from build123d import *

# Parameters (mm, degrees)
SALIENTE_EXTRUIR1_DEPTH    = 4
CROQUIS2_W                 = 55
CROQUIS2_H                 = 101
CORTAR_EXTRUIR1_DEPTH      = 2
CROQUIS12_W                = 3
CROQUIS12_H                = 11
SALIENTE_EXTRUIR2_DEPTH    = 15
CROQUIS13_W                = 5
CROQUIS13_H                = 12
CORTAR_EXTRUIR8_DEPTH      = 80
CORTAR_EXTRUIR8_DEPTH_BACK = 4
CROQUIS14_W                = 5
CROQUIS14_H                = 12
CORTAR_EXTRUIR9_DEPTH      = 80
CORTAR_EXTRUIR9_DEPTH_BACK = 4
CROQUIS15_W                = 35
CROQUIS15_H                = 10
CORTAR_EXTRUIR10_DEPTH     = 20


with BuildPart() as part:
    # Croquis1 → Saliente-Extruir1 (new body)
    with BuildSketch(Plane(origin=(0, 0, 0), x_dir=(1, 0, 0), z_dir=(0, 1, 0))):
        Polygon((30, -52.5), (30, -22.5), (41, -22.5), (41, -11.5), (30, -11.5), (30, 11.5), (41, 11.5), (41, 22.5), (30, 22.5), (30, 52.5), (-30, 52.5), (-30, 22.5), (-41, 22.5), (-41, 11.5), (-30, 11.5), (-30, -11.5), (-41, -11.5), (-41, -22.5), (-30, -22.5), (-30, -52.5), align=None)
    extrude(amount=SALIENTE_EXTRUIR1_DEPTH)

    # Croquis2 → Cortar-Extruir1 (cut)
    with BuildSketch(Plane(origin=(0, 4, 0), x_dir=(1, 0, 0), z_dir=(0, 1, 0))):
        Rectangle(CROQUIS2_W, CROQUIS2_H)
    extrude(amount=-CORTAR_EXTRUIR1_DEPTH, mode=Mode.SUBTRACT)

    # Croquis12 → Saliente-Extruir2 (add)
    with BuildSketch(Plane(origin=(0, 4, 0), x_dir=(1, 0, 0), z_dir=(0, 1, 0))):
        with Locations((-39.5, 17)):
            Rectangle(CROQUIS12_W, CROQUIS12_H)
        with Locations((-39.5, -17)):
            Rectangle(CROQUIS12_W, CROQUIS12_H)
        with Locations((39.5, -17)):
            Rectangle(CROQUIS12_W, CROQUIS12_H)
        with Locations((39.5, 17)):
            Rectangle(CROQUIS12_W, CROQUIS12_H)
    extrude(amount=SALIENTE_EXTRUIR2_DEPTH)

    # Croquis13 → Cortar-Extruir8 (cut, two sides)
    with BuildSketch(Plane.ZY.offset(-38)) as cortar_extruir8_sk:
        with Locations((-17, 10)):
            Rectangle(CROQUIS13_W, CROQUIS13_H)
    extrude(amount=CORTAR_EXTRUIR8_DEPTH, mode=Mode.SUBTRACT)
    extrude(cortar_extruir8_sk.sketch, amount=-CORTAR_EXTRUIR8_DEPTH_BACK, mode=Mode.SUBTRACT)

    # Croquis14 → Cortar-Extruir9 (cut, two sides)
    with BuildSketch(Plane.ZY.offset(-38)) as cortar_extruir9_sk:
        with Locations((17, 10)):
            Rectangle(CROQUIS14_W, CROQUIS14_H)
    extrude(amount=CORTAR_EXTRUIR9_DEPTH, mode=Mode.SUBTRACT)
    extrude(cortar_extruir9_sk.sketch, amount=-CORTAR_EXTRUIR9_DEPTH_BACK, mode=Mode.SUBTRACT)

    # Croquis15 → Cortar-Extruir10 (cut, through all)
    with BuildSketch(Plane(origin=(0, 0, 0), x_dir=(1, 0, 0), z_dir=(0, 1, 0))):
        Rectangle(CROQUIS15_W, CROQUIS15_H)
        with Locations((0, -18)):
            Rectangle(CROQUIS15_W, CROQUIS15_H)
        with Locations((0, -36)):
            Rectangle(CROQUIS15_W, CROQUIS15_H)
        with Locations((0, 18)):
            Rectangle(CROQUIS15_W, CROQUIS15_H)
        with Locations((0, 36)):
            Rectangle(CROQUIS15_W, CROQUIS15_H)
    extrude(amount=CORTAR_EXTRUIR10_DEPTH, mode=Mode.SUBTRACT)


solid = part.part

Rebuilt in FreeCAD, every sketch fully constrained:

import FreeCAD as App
import Part
import Sketcher
from FreeCAD import Vector
Q = App.Units.Quantity

doc = App.newDocument("Part")
body = doc.addObject("PartDesign::Body", "Body")

sketch1 = body.newObject("Sketcher::SketchObject", "Sketch")
sketch1.AttachmentSupport = (doc.getObject("XZ_Plane"), [""])
sketch1.MapMode = "FlatFace"
sketch1.addGeometry(Part.LineSegment(Vector(30, 52, 0), Vector(30, 22, 0)), False)
sketch1.addGeometry(Part.LineSegment(Vector(30, 22, 0), Vector(41, 22, 0)), False)
sketch1.addGeometry(Part.LineSegment(Vector(41, 22, 0), Vector(41, 12, 0)), False)
sketch1.addGeometry(Part.LineSegment(Vector(41, 12, 0), Vector(30, 12, 0)), False)
sketch1.addGeometry(Part.LineSegment(Vector(30, 12, 0), Vector(30, -12, 0)), False)
sketch1.addGeometry(Part.LineSegment(Vector(30, -12, 0), Vector(41, -12, 0)), False)
sketch1.addGeometry(Part.LineSegment(Vector(41, -12, 0), Vector(41, -22, 0)), False)
sketch1.addGeometry(Part.LineSegment(Vector(41, -22, 0), Vector(30, -22, 0)), False)
sketch1.addGeometry(Part.LineSegment(Vector(30, -22, 0), Vector(30, -52, 0)), False)
sketch1.addGeometry(Part.LineSegment(Vector(30, -52, 0), Vector(-30, -52, 0)), False)
sketch1.addGeometry(Part.LineSegment(Vector(-30, -52, 0), Vector(-30, -22, 0)), False)
sketch1.addGeometry(Part.LineSegment(Vector(-30, -22, 0), Vector(-41, -22, 0)), False)
sketch1.addGeometry(Part.LineSegment(Vector(-41, -22, 0), Vector(-41, -12, 0)), False)
sketch1.addGeometry(Part.LineSegment(Vector(-41, -12, 0), Vector(-30, -12, 0)), False)
sketch1.addGeometry(Part.LineSegment(Vector(-30, -12, 0), Vector(-30, 12, 0)), False)
sketch1.addGeometry(Part.LineSegment(Vector(-30, 12, 0), Vector(-41, 12, 0)), False)
sketch1.addGeometry(Part.LineSegment(Vector(-41, 12, 0), Vector(-41, 22, 0)), False)
sketch1.addGeometry(Part.LineSegment(Vector(-41, 22, 0), Vector(-30, 22, 0)), False)
sketch1.addGeometry(Part.LineSegment(Vector(-30, 22, 0), Vector(-30, 52, 0)), False)
sketch1.addGeometry(Part.LineSegment(Vector(-30, 52, 0), Vector(30, 52, 0)), False)
sketch1.addConstraint(Sketcher.Constraint("Coincident", 0, 2, 1, 1))
sketch1.addConstraint(Sketcher.Constraint("Coincident", 1, 2, 2, 1))
sketch1.addConstraint(Sketcher.Constraint("Coincident", 2, 2, 3, 1))
sketch1.addConstraint(Sketcher.Constraint("Coincident", 3, 2, 4, 1))
sketch1.addConstraint(Sketcher.Constraint("Coincident", 4, 2, 5, 1))
sketch1.addConstraint(Sketcher.Constraint("Coincident", 5, 2, 6, 1))
sketch1.addConstraint(Sketcher.Constraint("Coincident", 6, 2, 7, 1))
sketch1.addConstraint(Sketcher.Constraint("Coincident", 7, 2, 8, 1))
sketch1.addConstraint(Sketcher.Constraint("Coincident", 8, 2, 9, 1))
sketch1.addConstraint(Sketcher.Constraint("Coincident", 9, 2, 10, 1))
sketch1.addConstraint(Sketcher.Constraint("Coincident", 10, 2, 11, 1))
sketch1.addConstraint(Sketcher.Constraint("Coincident", 11, 2, 12, 1))
sketch1.addConstraint(Sketcher.Constraint("Coincident", 12, 2, 13, 1))
sketch1.addConstraint(Sketcher.Constraint("Coincident", 13, 2, 14, 1))
sketch1.addConstraint(Sketcher.Constraint("Coincident", 14, 2, 15, 1))
sketch1.addConstraint(Sketcher.Constraint("Coincident", 15, 2, 16, 1))
sketch1.addConstraint(Sketcher.Constraint("Coincident", 16, 2, 17, 1))
sketch1.addConstraint(Sketcher.Constraint("Coincident", 17, 2, 18, 1))
sketch1.addConstraint(Sketcher.Constraint("Coincident", 18, 2, 19, 1))
sketch1.addConstraint(Sketcher.Constraint("Coincident", 19, 2, 0, 1))
sketch1.addConstraint(Sketcher.Constraint("Vertical", 0))
sketch1.addConstraint(Sketcher.Constraint("Horizontal", 1))
sketch1.addConstraint(Sketcher.Constraint("Vertical", 2))
sketch1.addConstraint(Sketcher.Constraint("Horizontal", 3))
sketch1.addConstraint(Sketcher.Constraint("Vertical", 4))
sketch1.addConstraint(Sketcher.Constraint("Horizontal", 5))
sketch1.addConstraint(Sketcher.Constraint("Vertical", 6))
sketch1.addConstraint(Sketcher.Constraint("Horizontal", 7))
sketch1.addConstraint(Sketcher.Constraint("Vertical", 8))
sketch1.addConstraint(Sketcher.Constraint("Horizontal", 9))
sketch1.addConstraint(Sketcher.Constraint("Vertical", 10))
sketch1.addConstraint(Sketcher.Constraint("Horizontal", 11))
sketch1.addConstraint(Sketcher.Constraint("Vertical", 12))
sketch1.addConstraint(Sketcher.Constraint("Horizontal", 13))
sketch1.addConstraint(Sketcher.Constraint("Vertical", 14))
sketch1.addConstraint(Sketcher.Constraint("Horizontal", 15))
sketch1.addConstraint(Sketcher.Constraint("Vertical", 16))
sketch1.addConstraint(Sketcher.Constraint("Horizontal", 17))
sketch1.addConstraint(Sketcher.Constraint("Vertical", 18))
sketch1.addConstraint(Sketcher.Constraint("Horizontal", 19))
sketch1.addConstraint(Sketcher.Constraint("Symmetric", 0, 2, 10, 2, -1, 1))
sketch1.addConstraint(Sketcher.Constraint("Symmetric", 2, 2, 12, 2, -1, 1))
sketch1.addConstraint(Sketcher.Constraint("Symmetric", 4, 2, 14, 2, -1, 1))
sketch1.addConstraint(Sketcher.Constraint("Symmetric", 6, 2, 16, 2, -1, 1))
sketch1.addConstraint(Sketcher.Constraint("Symmetric", 8, 2, 18, 2, -1, 1))
sketch1.addConstraint(Sketcher.Constraint("Symmetric", 7, 2, 10, 2, -2))
sketch1.addConstraint(Sketcher.Constraint("Symmetric", 5, 2, 12, 2, -2))
sketch1.addConstraint(Sketcher.Constraint("Vertical", 0, 2, 3, 2))
sketch1.addConstraint(Sketcher.Constraint("Equal", 17, 2))
sketch1.addConstraint(Sketcher.Constraint("DistanceX", 1, 1, 1, 2, Q("11 mm")))
sketch1.addConstraint(Sketcher.Constraint("DistanceX", 9, 2, 9, 1, Q("60 mm")))
sketch1.addConstraint(Sketcher.Constraint("DistanceY", 0, 2, 0, 1, Q("30 mm")))
sketch1.addConstraint(Sketcher.Constraint("DistanceY", 4, 2, 4, 1, Q("23 mm")))
pad1 = body.newObject("PartDesign::Pad", "Pad")
pad1.Profile = sketch1
pad1.Length = 4
pad1.Reversed = True

sketch2 = body.newObject("Sketcher::SketchObject", "Sketch001")
sketch2.AttachmentSupport = (doc.getObject("XZ_Plane"), [""])
sketch2.MapMode = "FlatFace"
sketch2.AttachmentOffset = App.Placement(Vector(0, 0, -4), App.Rotation())
sketch2.addGeometry(Part.LineSegment(Vector(-28, -50, 0), Vector(-28, 50, 0)), False)
sketch2.addGeometry(Part.LineSegment(Vector(-28, 50, 0), Vector(28, 50, 0)), False)
sketch2.addGeometry(Part.LineSegment(Vector(28, 50, 0), Vector(28, -50, 0)), False)
sketch2.addGeometry(Part.LineSegment(Vector(28, -50, 0), Vector(-28, -50, 0)), False)
sketch2.addConstraint(Sketcher.Constraint("Coincident", 0, 2, 1, 1))
sketch2.addConstraint(Sketcher.Constraint("Coincident", 1, 2, 2, 1))
sketch2.addConstraint(Sketcher.Constraint("Coincident", 2, 2, 3, 1))
sketch2.addConstraint(Sketcher.Constraint("Coincident", 3, 2, 0, 1))
sketch2.addConstraint(Sketcher.Constraint("Vertical", 0))
sketch2.addConstraint(Sketcher.Constraint("Horizontal", 1))
sketch2.addConstraint(Sketcher.Constraint("Vertical", 2))
sketch2.addConstraint(Sketcher.Constraint("Horizontal", 3))
sketch2.addConstraint(Sketcher.Constraint("Symmetric", 0, 2, 2, 2, -1, 1))
sketch2.addConstraint(Sketcher.Constraint("DistanceX", 1, 1, 1, 2, Q("55 mm")))
sketch2.addConstraint(Sketcher.Constraint("DistanceY", 0, 1, 0, 2, Q("101 mm")))
pocket1 = body.newObject("PartDesign::Pocket", "Pocket")
pocket1.Profile = sketch2
pocket1.Length = 2
pocket1.Reversed = True

sketch3 = body.newObject("Sketcher::SketchObject", "Sketch002")
sketch3.AttachmentSupport = (doc.getObject("XZ_Plane"), [""])
sketch3.MapMode = "FlatFace"
sketch3.AttachmentOffset = App.Placement(Vector(0, 0, -4), App.Rotation())
sketch3.addGeometry(Part.LineSegment(Vector(-41, -22.5, 0), Vector(-41, -11.5, 0)), False)
sketch3.addGeometry(Part.LineSegment(Vector(-41, -11.5, 0), Vector(-38, -11.5, 0)), False)
sketch3.addGeometry(Part.LineSegment(Vector(-38, -11.5, 0), Vector(-38, -22.5, 0)), False)
sketch3.addGeometry(Part.LineSegment(Vector(-38, -22.5, 0), Vector(-41, -22.5, 0)), False)
sketch3.addGeometry(Part.LineSegment(Vector(-41, 11.5, 0), Vector(-41, 22.5, 0)), False)
sketch3.addGeometry(Part.LineSegment(Vector(-41, 22.5, 0), Vector(-38, 22.5, 0)), False)
sketch3.addGeometry(Part.LineSegment(Vector(-38, 22.5, 0), Vector(-38, 11.5, 0)), False)
sketch3.addGeometry(Part.LineSegment(Vector(-38, 11.5, 0), Vector(-41, 11.5, 0)), False)
sketch3.addGeometry(Part.LineSegment(Vector(38, 11.5, 0), Vector(38, 22.5, 0)), False)
sketch3.addGeometry(Part.LineSegment(Vector(38, 22.5, 0), Vector(41, 22.5, 0)), False)
sketch3.addGeometry(Part.LineSegment(Vector(41, 22.5, 0), Vector(41, 11.5, 0)), False)
sketch3.addGeometry(Part.LineSegment(Vector(41, 11.5, 0), Vector(38, 11.5, 0)), False)
sketch3.addGeometry(Part.LineSegment(Vector(38, -22.5, 0), Vector(38, -11.5, 0)), False)
sketch3.addGeometry(Part.LineSegment(Vector(38, -11.5, 0), Vector(41, -11.5, 0)), False)
sketch3.addGeometry(Part.LineSegment(Vector(41, -11.5, 0), Vector(41, -22.5, 0)), False)
sketch3.addGeometry(Part.LineSegment(Vector(41, -22.5, 0), Vector(38, -22.5, 0)), False)
sketch3.addConstraint(Sketcher.Constraint("Coincident", 0, 2, 1, 1))
sketch3.addConstraint(Sketcher.Constraint("Coincident", 1, 2, 2, 1))
sketch3.addConstraint(Sketcher.Constraint("Coincident", 2, 2, 3, 1))
sketch3.addConstraint(Sketcher.Constraint("Coincident", 3, 2, 0, 1))
sketch3.addConstraint(Sketcher.Constraint("Coincident", 4, 2, 5, 1))
sketch3.addConstraint(Sketcher.Constraint("Coincident", 5, 2, 6, 1))
sketch3.addConstraint(Sketcher.Constraint("Coincident", 6, 2, 7, 1))
sketch3.addConstraint(Sketcher.Constraint("Coincident", 7, 2, 4, 1))
sketch3.addConstraint(Sketcher.Constraint("Coincident", 8, 2, 9, 1))
sketch3.addConstraint(Sketcher.Constraint("Coincident", 9, 2, 10, 1))
sketch3.addConstraint(Sketcher.Constraint("Coincident", 10, 2, 11, 1))
sketch3.addConstraint(Sketcher.Constraint("Coincident", 11, 2, 8, 1))
sketch3.addConstraint(Sketcher.Constraint("Coincident", 12, 2, 13, 1))
sketch3.addConstraint(Sketcher.Constraint("Coincident", 13, 2, 14, 1))
sketch3.addConstraint(Sketcher.Constraint("Coincident", 14, 2, 15, 1))
sketch3.addConstraint(Sketcher.Constraint("Coincident", 15, 2, 12, 1))
sketch3.addConstraint(Sketcher.Constraint("Vertical", 0))
sketch3.addConstraint(Sketcher.Constraint("Horizontal", 1))
sketch3.addConstraint(Sketcher.Constraint("Vertical", 2))
sketch3.addConstraint(Sketcher.Constraint("Horizontal", 3))
sketch3.addConstraint(Sketcher.Constraint("Vertical", 4))
sketch3.addConstraint(Sketcher.Constraint("Horizontal", 5))
sketch3.addConstraint(Sketcher.Constraint("Vertical", 6))
sketch3.addConstraint(Sketcher.Constraint("Horizontal", 7))
sketch3.addConstraint(Sketcher.Constraint("Vertical", 8))
sketch3.addConstraint(Sketcher.Constraint("Horizontal", 9))
sketch3.addConstraint(Sketcher.Constraint("Vertical", 10))
sketch3.addConstraint(Sketcher.Constraint("Horizontal", 11))
sketch3.addConstraint(Sketcher.Constraint("Vertical", 12))
sketch3.addConstraint(Sketcher.Constraint("Horizontal", 13))
sketch3.addConstraint(Sketcher.Constraint("Vertical", 14))
sketch3.addConstraint(Sketcher.Constraint("Horizontal", 15))
sketch3.addConstraint(Sketcher.Constraint("Symmetric", 2, 2, 8, 2, -1, 1))
sketch3.addConstraint(Sketcher.Constraint("Symmetric", 0, 2, 10, 2, -1, 1))
sketch3.addConstraint(Sketcher.Constraint("Symmetric", 6, 2, 12, 2, -1, 1))
sketch3.addConstraint(Sketcher.Constraint("Symmetric", 4, 2, 14, 2, -1, 1))
sketch3.addConstraint(Sketcher.Constraint("Symmetric", 5, 2, 8, 2, -2))
sketch3.addConstraint(Sketcher.Constraint("Symmetric", 7, 2, 10, 2, -2))
sketch3.addConstraint(Sketcher.Constraint("DistanceX", 1, 1, 1, 2, Q("3 mm")))
sketch3.addConstraint(Sketcher.Constraint("DistanceY", 0, 1, 0, 2, Q("11 mm")))
sketch3.addConstraint(Sketcher.Constraint("DistanceX", 0, 2, -1, 1, Q("41 mm")))
sketch3.addConstraint(Sketcher.Constraint("DistanceY", 0, 2, 4, 2, Q("34 mm")))
pad2 = body.newObject("PartDesign::Pad", "Pad001")
pad2.Profile = sketch3
pad2.Length = 15
pad2.Reversed = True

sketch4 = body.newObject("Sketcher::SketchObject", "Sketch003")
sketch4.AttachmentSupport = (doc.getObject("YZ_Plane"), [""])
sketch4.MapMode = "FlatFace"
sketch4.AttachmentOffset = App.Placement(Vector(0, 0, 38), App.Rotation())
sketch4.addGeometry(Part.LineSegment(Vector(16, -20, 0), Vector(4, -20, 0)), False)
sketch4.addGeometry(Part.LineSegment(Vector(4, -20, 0), Vector(4, -14, 0)), False)
sketch4.addGeometry(Part.LineSegment(Vector(4, -14, 0), Vector(16, -14, 0)), False)
sketch4.addGeometry(Part.LineSegment(Vector(16, -14, 0), Vector(16, -20, 0)), False)
sketch4.addConstraint(Sketcher.Constraint("Coincident", 0, 2, 1, 1))
sketch4.addConstraint(Sketcher.Constraint("Coincident", 1, 2, 2, 1))
sketch4.addConstraint(Sketcher.Constraint("Coincident", 2, 2, 3, 1))
sketch4.addConstraint(Sketcher.Constraint("Coincident", 3, 2, 0, 1))
sketch4.addConstraint(Sketcher.Constraint("Horizontal", 0))
sketch4.addConstraint(Sketcher.Constraint("Vertical", 1))
sketch4.addConstraint(Sketcher.Constraint("Horizontal", 2))
sketch4.addConstraint(Sketcher.Constraint("Vertical", 3))
sketch4.addConstraint(Sketcher.Constraint("DistanceX", 0, 2, 0, 1, Q("12 mm")))
sketch4.addConstraint(Sketcher.Constraint("DistanceY", 1, 1, 1, 2, Q("5 mm")))
sketch4.addConstraint(Sketcher.Constraint("DistanceX", -1, 1, 0, 2, Q("4 mm")))
sketch4.addConstraint(Sketcher.Constraint("DistanceY", 0, 2, -1, 1, Q("19.5 mm")))
pocket2 = body.newObject("PartDesign::Pocket", "Pocket001")
pocket2.Profile = sketch4
pocket2.Type = "ThroughAll"
pocket2.Midplane = True

sketch5 = body.newObject("Sketcher::SketchObject", "Sketch004")
sketch5.AttachmentSupport = (doc.getObject("YZ_Plane"), [""])
sketch5.MapMode = "FlatFace"
sketch5.AttachmentOffset = App.Placement(Vector(0, 0, 38), App.Rotation())
sketch5.addGeometry(Part.LineSegment(Vector(16, 14, 0), Vector(4, 14, 0)), False)
sketch5.addGeometry(Part.LineSegment(Vector(4, 14, 0), Vector(4, 20, 0)), False)
sketch5.addGeometry(Part.LineSegment(Vector(4, 20, 0), Vector(16, 20, 0)), False)
sketch5.addGeometry(Part.LineSegment(Vector(16, 20, 0), Vector(16, 14, 0)), False)
sketch5.addConstraint(Sketcher.Constraint("Coincident", 0, 2, 1, 1))
sketch5.addConstraint(Sketcher.Constraint("Coincident", 1, 2, 2, 1))
sketch5.addConstraint(Sketcher.Constraint("Coincident", 2, 2, 3, 1))
sketch5.addConstraint(Sketcher.Constraint("Coincident", 3, 2, 0, 1))
sketch5.addConstraint(Sketcher.Constraint("Horizontal", 0))
sketch5.addConstraint(Sketcher.Constraint("Vertical", 1))
sketch5.addConstraint(Sketcher.Constraint("Horizontal", 2))
sketch5.addConstraint(Sketcher.Constraint("Vertical", 3))
sketch5.addConstraint(Sketcher.Constraint("DistanceX", 0, 2, 0, 1, Q("12 mm")))
sketch5.addConstraint(Sketcher.Constraint("DistanceY", 1, 1, 1, 2, Q("5 mm")))
sketch5.addConstraint(Sketcher.Constraint("DistanceX", -1, 1, 0, 2, Q("4 mm")))
sketch5.addConstraint(Sketcher.Constraint("DistanceY", -1, 1, 0, 2, Q("14.5 mm")))
pocket3 = body.newObject("PartDesign::Pocket", "Pocket002")
pocket3.Profile = sketch5
pocket3.Type = "ThroughAll"
pocket3.Midplane = True

sketch6 = body.newObject("Sketcher::SketchObject", "Sketch005")
sketch6.AttachmentSupport = (doc.getObject("XZ_Plane"), [""])
sketch6.MapMode = "FlatFace"
sketch6.addGeometry(Part.LineSegment(Vector(-18, -5, 0), Vector(-18, 5, 0)), False)
sketch6.addGeometry(Part.LineSegment(Vector(-18, 5, 0), Vector(18, 5, 0)), False)
sketch6.addGeometry(Part.LineSegment(Vector(18, 5, 0), Vector(18, -5, 0)), False)
sketch6.addGeometry(Part.LineSegment(Vector(18, -5, 0), Vector(-18, -5, 0)), False)
sketch6.addGeometry(Part.LineSegment(Vector(-18, 13, 0), Vector(-18, 23, 0)), False)
sketch6.addGeometry(Part.LineSegment(Vector(-18, 23, 0), Vector(18, 23, 0)), False)
sketch6.addGeometry(Part.LineSegment(Vector(18, 23, 0), Vector(18, 13, 0)), False)
sketch6.addGeometry(Part.LineSegment(Vector(18, 13, 0), Vector(-18, 13, 0)), False)
sketch6.addGeometry(Part.LineSegment(Vector(-18, 31, 0), Vector(-18, 41, 0)), False)
sketch6.addGeometry(Part.LineSegment(Vector(-18, 41, 0), Vector(18, 41, 0)), False)
sketch6.addGeometry(Part.LineSegment(Vector(18, 41, 0), Vector(18, 31, 0)), False)
sketch6.addGeometry(Part.LineSegment(Vector(18, 31, 0), Vector(-18, 31, 0)), False)
sketch6.addGeometry(Part.LineSegment(Vector(-18, -23, 0), Vector(-18, -13, 0)), False)
sketch6.addGeometry(Part.LineSegment(Vector(-18, -13, 0), Vector(18, -13, 0)), False)
sketch6.addGeometry(Part.LineSegment(Vector(18, -13, 0), Vector(18, -23, 0)), False)
sketch6.addGeometry(Part.LineSegment(Vector(18, -23, 0), Vector(-18, -23, 0)), False)
sketch6.addGeometry(Part.LineSegment(Vector(-18, -41, 0), Vector(-18, -31, 0)), False)
sketch6.addGeometry(Part.LineSegment(Vector(-18, -31, 0), Vector(18, -31, 0)), False)
sketch6.addGeometry(Part.LineSegment(Vector(18, -31, 0), Vector(18, -41, 0)), False)
sketch6.addGeometry(Part.LineSegment(Vector(18, -41, 0), Vector(-18, -41, 0)), False)
sketch6.addConstraint(Sketcher.Constraint("Coincident", 0, 2, 1, 1))
sketch6.addConstraint(Sketcher.Constraint("Coincident", 1, 2, 2, 1))
sketch6.addConstraint(Sketcher.Constraint("Coincident", 2, 2, 3, 1))
sketch6.addConstraint(Sketcher.Constraint("Coincident", 3, 2, 0, 1))
sketch6.addConstraint(Sketcher.Constraint("Coincident", 4, 2, 5, 1))
sketch6.addConstraint(Sketcher.Constraint("Coincident", 5, 2, 6, 1))
sketch6.addConstraint(Sketcher.Constraint("Coincident", 6, 2, 7, 1))
sketch6.addConstraint(Sketcher.Constraint("Coincident", 7, 2, 4, 1))
sketch6.addConstraint(Sketcher.Constraint("Coincident", 8, 2, 9, 1))
sketch6.addConstraint(Sketcher.Constraint("Coincident", 9, 2, 10, 1))
sketch6.addConstraint(Sketcher.Constraint("Coincident", 10, 2, 11, 1))
sketch6.addConstraint(Sketcher.Constraint("Coincident", 11, 2, 8, 1))
sketch6.addConstraint(Sketcher.Constraint("Coincident", 12, 2, 13, 1))
sketch6.addConstraint(Sketcher.Constraint("Coincident", 13, 2, 14, 1))
sketch6.addConstraint(Sketcher.Constraint("Coincident", 14, 2, 15, 1))
sketch6.addConstraint(Sketcher.Constraint("Coincident", 15, 2, 12, 1))
sketch6.addConstraint(Sketcher.Constraint("Coincident", 16, 2, 17, 1))
sketch6.addConstraint(Sketcher.Constraint("Coincident", 17, 2, 18, 1))
sketch6.addConstraint(Sketcher.Constraint("Coincident", 18, 2, 19, 1))
sketch6.addConstraint(Sketcher.Constraint("Coincident", 19, 2, 16, 1))
sketch6.addConstraint(Sketcher.Constraint("Vertical", 0))
sketch6.addConstraint(Sketcher.Constraint("Horizontal", 1))
sketch6.addConstraint(Sketcher.Constraint("Vertical", 2))
sketch6.addConstraint(Sketcher.Constraint("Horizontal", 3))
sketch6.addConstraint(Sketcher.Constraint("Vertical", 4))
sketch6.addConstraint(Sketcher.Constraint("Horizontal", 5))
sketch6.addConstraint(Sketcher.Constraint("Vertical", 6))
sketch6.addConstraint(Sketcher.Constraint("Horizontal", 7))
sketch6.addConstraint(Sketcher.Constraint("Vertical", 8))
sketch6.addConstraint(Sketcher.Constraint("Horizontal", 9))
sketch6.addConstraint(Sketcher.Constraint("Vertical", 10))
sketch6.addConstraint(Sketcher.Constraint("Horizontal", 11))
sketch6.addConstraint(Sketcher.Constraint("Vertical", 12))
sketch6.addConstraint(Sketcher.Constraint("Horizontal", 13))
sketch6.addConstraint(Sketcher.Constraint("Vertical", 14))
sketch6.addConstraint(Sketcher.Constraint("Horizontal", 15))
sketch6.addConstraint(Sketcher.Constraint("Vertical", 16))
sketch6.addConstraint(Sketcher.Constraint("Horizontal", 17))
sketch6.addConstraint(Sketcher.Constraint("Vertical", 18))
sketch6.addConstraint(Sketcher.Constraint("Horizontal", 19))
sketch6.addConstraint(Sketcher.Constraint("Symmetric", 0, 2, 2, 2, -1, 1))
sketch6.addConstraint(Sketcher.Constraint("Symmetric", 6, 2, 12, 2, -1, 1))
sketch6.addConstraint(Sketcher.Constraint("Symmetric", 4, 2, 14, 2, -1, 1))
sketch6.addConstraint(Sketcher.Constraint("Symmetric", 10, 2, 16, 2, -1, 1))
sketch6.addConstraint(Sketcher.Constraint("Symmetric", 8, 2, 18, 2, -1, 1))
sketch6.addConstraint(Sketcher.Constraint("Vertical", 3, 2, 4, 2))
sketch6.addConstraint(Sketcher.Constraint("Vertical", 2, 2, 5, 2))
sketch6.addConstraint(Sketcher.Constraint("Vertical", 7, 2, 8, 2))
sketch6.addConstraint(Sketcher.Constraint("Vertical", 6, 2, 9, 2))
sketch6.addConstraint(Sketcher.Constraint("Equal", 2, 4))
sketch6.addConstraint(Sketcher.Constraint("Equal", 6, 8))
sketch6.addConstraint(Sketcher.Constraint("DistanceX", 1, 1, 1, 2, Q("35 mm")))
sketch6.addConstraint(Sketcher.Constraint("DistanceY", 0, 1, 0, 2, Q("10 mm")))
sketch6.addConstraint(Sketcher.Constraint("DistanceY", -1, 1, 4, 2, Q("23 mm")))
sketch6.addConstraint(Sketcher.Constraint("DistanceY", -1, 1, 8, 2, Q("41 mm")))
pocket4 = body.newObject("PartDesign::Pocket", "Pocket003")
pocket4.Profile = sketch6
pocket4.Type = "ThroughAll"

doc.recompute()
